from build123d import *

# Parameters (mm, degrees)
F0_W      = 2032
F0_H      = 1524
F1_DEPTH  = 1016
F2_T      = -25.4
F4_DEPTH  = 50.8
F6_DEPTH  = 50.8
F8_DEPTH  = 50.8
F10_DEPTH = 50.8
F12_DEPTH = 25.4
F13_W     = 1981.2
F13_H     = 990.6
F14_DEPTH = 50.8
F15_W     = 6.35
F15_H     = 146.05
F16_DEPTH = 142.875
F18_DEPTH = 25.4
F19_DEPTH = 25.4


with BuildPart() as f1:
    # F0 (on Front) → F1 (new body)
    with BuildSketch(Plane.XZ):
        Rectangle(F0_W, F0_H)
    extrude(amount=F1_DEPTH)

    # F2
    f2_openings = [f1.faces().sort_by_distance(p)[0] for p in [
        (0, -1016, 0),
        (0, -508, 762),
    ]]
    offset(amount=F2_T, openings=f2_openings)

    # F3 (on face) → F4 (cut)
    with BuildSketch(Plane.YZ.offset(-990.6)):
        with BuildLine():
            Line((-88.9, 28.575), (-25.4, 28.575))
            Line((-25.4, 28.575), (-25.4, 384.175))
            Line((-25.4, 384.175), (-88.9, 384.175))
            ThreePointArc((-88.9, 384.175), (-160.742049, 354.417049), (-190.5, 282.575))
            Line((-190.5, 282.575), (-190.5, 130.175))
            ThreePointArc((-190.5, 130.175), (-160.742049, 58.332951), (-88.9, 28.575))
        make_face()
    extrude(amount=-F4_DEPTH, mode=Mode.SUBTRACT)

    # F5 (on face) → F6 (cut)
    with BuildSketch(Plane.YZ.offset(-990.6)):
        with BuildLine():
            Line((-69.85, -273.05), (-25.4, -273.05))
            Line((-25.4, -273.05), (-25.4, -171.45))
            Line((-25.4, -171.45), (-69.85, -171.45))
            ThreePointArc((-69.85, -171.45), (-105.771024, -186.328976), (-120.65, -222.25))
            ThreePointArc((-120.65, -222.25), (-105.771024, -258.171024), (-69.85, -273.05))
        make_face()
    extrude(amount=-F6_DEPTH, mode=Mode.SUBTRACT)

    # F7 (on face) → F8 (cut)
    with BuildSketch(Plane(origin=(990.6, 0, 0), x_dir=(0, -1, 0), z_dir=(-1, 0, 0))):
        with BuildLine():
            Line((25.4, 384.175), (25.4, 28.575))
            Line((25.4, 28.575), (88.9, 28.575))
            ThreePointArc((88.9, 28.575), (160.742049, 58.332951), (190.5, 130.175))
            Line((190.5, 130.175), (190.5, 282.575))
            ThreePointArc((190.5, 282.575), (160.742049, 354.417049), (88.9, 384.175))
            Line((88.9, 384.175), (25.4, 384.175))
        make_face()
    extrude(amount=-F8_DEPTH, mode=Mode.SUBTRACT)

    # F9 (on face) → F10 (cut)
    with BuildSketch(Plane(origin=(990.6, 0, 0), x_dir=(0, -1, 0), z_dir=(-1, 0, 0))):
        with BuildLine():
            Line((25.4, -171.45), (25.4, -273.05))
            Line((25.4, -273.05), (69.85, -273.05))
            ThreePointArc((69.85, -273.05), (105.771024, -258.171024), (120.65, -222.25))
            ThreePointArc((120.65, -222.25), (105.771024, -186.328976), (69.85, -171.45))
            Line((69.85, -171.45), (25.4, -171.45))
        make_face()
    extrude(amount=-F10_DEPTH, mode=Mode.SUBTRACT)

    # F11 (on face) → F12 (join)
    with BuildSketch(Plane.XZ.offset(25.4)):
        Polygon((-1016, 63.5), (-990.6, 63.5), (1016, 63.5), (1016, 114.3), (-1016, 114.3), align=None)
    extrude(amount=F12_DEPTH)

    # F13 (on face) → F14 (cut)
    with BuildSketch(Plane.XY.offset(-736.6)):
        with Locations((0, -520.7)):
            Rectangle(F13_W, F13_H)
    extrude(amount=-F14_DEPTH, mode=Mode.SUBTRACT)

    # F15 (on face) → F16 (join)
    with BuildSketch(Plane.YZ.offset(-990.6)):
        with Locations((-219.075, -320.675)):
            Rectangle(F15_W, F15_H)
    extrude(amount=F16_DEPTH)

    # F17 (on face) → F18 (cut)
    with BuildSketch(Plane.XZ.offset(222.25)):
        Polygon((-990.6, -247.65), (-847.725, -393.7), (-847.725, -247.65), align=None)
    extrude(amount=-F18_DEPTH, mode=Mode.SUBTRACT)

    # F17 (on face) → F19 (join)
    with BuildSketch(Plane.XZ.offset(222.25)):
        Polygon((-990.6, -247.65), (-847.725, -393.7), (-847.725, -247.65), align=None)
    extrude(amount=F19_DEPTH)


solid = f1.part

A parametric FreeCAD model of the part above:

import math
import FreeCAD as App
import Part
import Sketcher
Q = App.Units.Quantity


def faces_at(feature, points):
    """Names of the faces that lie closest to the given points."""
    faces = feature.Shape.Faces
    near = lambda p: min(range(len(faces)), key=lambda i: faces[i].distToShape(Part.Vertex(*p))[0])
    return sorted({f"Face{near(p) + 1}" for p in points})

doc = App.newDocument("Part")
params = doc.addObject("Spreadsheet::Sheet", "Params")
for row, (alias, value) in enumerate([
    ("sketch1_width", "80 in"),
    ("sketch1_height", "60 in"),
    ("pad1_length", "40 in"),
    ("thickness_wall", "1 in"),
    ("sketch2_radius", "4 in"),
    ("sketch2_height", "14 in"),
    ("sketch2_width", "2.5 in"),
    ("pocket1_length", "2 in"),
    ("sketch3_radius", "2.0000001 in"),
    ("sketch3_width", "1.75 in"),
    ("pocket2_length", "2 in"),
    ("sketch4_radius", "4 in"),
    ("sketch4_height", "14 in"),
    ("sketch4_width", "2.5 in"),
    ("pocket3_length", "2 in"),
    ("sketch5_radius", "2.0000001 in"),
    ("sketch5_width", "1.75 in"),
    ("pocket4_length", "2 in"),
    ("sketch6_width", "80 in"),
    ("sketch6_height", "2 in"),
    ("pad2_length", "1 in"),
    ("sketch7_width", "78 in"),
    ("sketch7_height", "39 in"),
    ("pocket5_length", "2 in"),
    ("sketch8_width", "0.25 in"),
    ("sketch8_height", "5.75 in"),
    ("pad3_length", "5.625 in"),
    ("sketch9_height", "5.75 in"),
    ("sketch9_width", "5.625 in"),
    ("pocket6_length", "1 in"),
    ("sketch10_height", "5.75 in"),
    ("sketch10_width", "5.625 in"),
    ("pad4_length", "1 in"),
], start=1):
    params.set(f"A{row}", alias)
    params.set(f"B{row}", "=" + value)
    params.setAlias(f"B{row}", alias)

body = doc.addObject("PartDesign::Body", "Body")
body.AllowCompound = True

# Sketch on XZ plane
sketch1 = body.newObject("Sketcher::SketchObject", "Sketch")
sketch1.AttachmentSupport = (doc.getObject("XZ_Plane"), [""])
sketch1.MapMode = "FlatFace"
sketch1.addGeometry([
    Part.LineSegment(App.Vector(-1016, 762, 0), App.Vector(-1016, -762, 0)),
    Part.LineSegment(App.Vector(-1016, -762, 0), App.Vector(1016, -762, 0)),
    Part.LineSegment(App.Vector(1016, -762, 0), App.Vector(1016, 762, 0)),
    Part.LineSegment(App.Vector(1016, 762, 0), App.Vector(-1016, 762, 0)),
], False)
sketch1.addConstraint([
    Sketcher.Constraint("Coincident", 0, 2, 1, 1),
    Sketcher.Constraint("Coincident", 1, 2, 2, 1),
    Sketcher.Constraint("Coincident", 2, 2, 3, 1),
    Sketcher.Constraint("Coincident", 3, 2, 0, 1),
    Sketcher.Constraint("Vertical", 0),
    Sketcher.Constraint("Horizontal", 1),
    Sketcher.Constraint("Vertical", 2),
    Sketcher.Constraint("Horizontal", 3),
    Sketcher.Constraint("Symmetric", 0, 2, 2, 2, -1, 1),
    Sketcher.Constraint("DistanceX", 1, 1, 1, 2, Q("80 in")),
    Sketcher.Constraint("DistanceY", 0, 2, 0, 1, Q("60 in")),
])
sketch1.setExpression("Constraints[9]", "Params.sketch1_width")
sketch1.setExpression("Constraints[10]", "Params.sketch1_height")
pad1 = body.newObject("PartDesign::Pad", "Pad")
pad1.Profile = sketch1
pad1.setExpression("Length", "Params.pad1_length")
doc.recompute()

thickness = body.newObject("PartDesign::Thickness", "Thickness")
thickness.Base = (pad1, faces_at(pad1, [(0, -1016, 0), (0, -508, 762)]))
thickness.setExpression("Value", "Params.thickness_wall")
thickness.Reversed = True
thickness.Join = "Arc"

# Sketch on YZ plane
sketch2 = body.newObject("Sketcher::SketchObject", "Sketch001")
sketch2.AttachmentSupport = (doc.getObject("YZ_Plane"), [""])
sketch2.MapMode = "FlatFace"
sketch2.AttachmentOffset = App.Placement(App.Vector(0, 0, -39 * 25.4), App.Rotation())
sketch2.addGeometry([
    Part.LineSegment(App.Vector(-89, 29, 0), App.Vector(-25, 29, 0)),  # 0
    Part.LineSegment(App.Vector(-25, 29, 0), App.Vector(-25, 384, 0)),  # 1
    Part.LineSegment(App.Vector(-25, 384, 0), App.Vector(-89, 384, 0)),  # 2
    Part.ArcOfCircle(Part.Circle(App.Vector(-89, 283, 0), App.Vector(0, 0, 1), 102), math.radians(90), math.radians(180)),  # 3
    Part.LineSegment(App.Vector(-190, 283, 0), App.Vector(-190, 130, 0)),  # 4
    Part.ArcOfCircle(Part.Circle(App.Vector(-89, 130, 0), App.Vector(0, 0, 1), 102), math.radians(180), math.radians(270)),  # 5
], False)
sketch2.addConstraint([
    Sketcher.Constraint("Coincident", 0, 2, 1, 1),
    Sketcher.Constraint("Coincident", 1, 2, 2, 1),
    Sketcher.Constraint("Tangent", 2, 2, 3, 1),
    Sketcher.Constraint("Tangent", 3, 2, 4, 1),
    Sketcher.Constraint("Tangent", 4, 2, 5, 1),
    Sketcher.Constraint("Tangent", 5, 2, 0, 1),
    Sketcher.Constraint("Horizontal", 0),
    Sketcher.Constraint("Vertical", 1),
    Sketcher.Constraint("Horizontal", 2),
    Sketcher.Constraint("Vertical", 4),
    Sketcher.Constraint("Equal", 3, 5),
    Sketcher.Constraint("Radius", 3, Q("4 in")),
    Sketcher.Constraint("DistanceY", 1, 1, 1, 2, Q("14 in")),
    Sketcher.Constraint("DistanceX", 0, 1, 0, 2, Q("2.5 in")),
    Sketcher.Constraint("DistanceX", 0, 2, -1, 1, Q("1 in")),
    Sketcher.Constraint("DistanceY", -1, 1, 3, 3, Q("11.125 in")),
])
sketch2.setExpression("Constraints[11]", "Params.sketch2_radius")
sketch2.setExpression("Constraints[12]", "Params.sketch2_height")
sketch2.setExpression("Constraints[13]", "Params.sketch2_width")
pocket1 = body.newObject("PartDesign::Pocket", "Pocket")
pocket1.Profile = sketch2
pocket1.setExpression("Length", "Params.pocket1_length")

# Sketch on YZ plane
sketch3 = body.newObject("Sketcher::SketchObject", "Sketch002")
sketch3.AttachmentSupport = (doc.getObject("YZ_Plane"), [""])
sketch3.MapMode = "FlatFace"
sketch3.AttachmentOffset = App.Placement(App.Vector(0, 0, -39 * 25.4), App.Rotation())
sketch3.addGeometry([
    Part.LineSegment(App.Vector(-70, -273, 0), App.Vector(-25, -273, 0)),  # 0
    Part.LineSegment(App.Vector(-25, -273, 0), App.Vector(-25, -171, 0)),  # 1
    Part.LineSegment(App.Vector(-25, -171, 0), App.Vector(-70, -171, 0)),  # 2
    Part.ArcOfCircle(Part.Circle(App.Vector(-70, -222, 0), App.Vector(0, 0, 1), 51), math.radians(90), math.radians(180)),  # 3
    Part.ArcOfCircle(Part.Circle(App.Vector(-70, -222, 0), App.Vector(0, 0, 1), 51), math.radians(-180), math.radians(-90)),  # 4
], False)
sketch3.addConstraint([
    Sketcher.Constraint("Coincident", 0, 2, 1, 1),
    Sketcher.Constraint("Coincident", 1, 2, 2, 1),
    Sketcher.Constraint("Tangent", 2, 2, 3, 1),
    Sketcher.Constraint("Tangent", 3, 2, 4, 1),
    Sketcher.Constraint("Tangent", 4, 2, 0, 1),
    Sketcher.Constraint("Horizontal", 0),
    Sketcher.Constraint("Vertical", 1),
    Sketcher.Constraint("Horizontal", 2),
    Sketcher.Constraint("Equal", 3, 4),
    Sketcher.Constraint("Horizontal", 4, 3, 3, 2),
    Sketcher.Constraint("Radius", 3, Q("2.0000001 in")),
    Sketcher.Constraint("DistanceX", 0, 2, -1, 1, Q("1 in")),
    Sketcher.Constraint("DistanceX", 0, 1, 0, 2, Q("1.75 in")),
    Sketcher.Constraint("DistanceY", 3, 3, -1, 1, Q("8.7500001 in")),
])
sketch3.setExpression("Constraints[10]", "Params.sketch3_radius")
sketch3.setExpression("Constraints[12]", "Params.sketch3_width")
pocket2 = body.newObject("PartDesign::Pocket", "Pocket001")
pocket2.Profile = sketch3
pocket2.setExpression("Length", "Params.pocket2_length")

# Sketch on YZ plane
sketch4 = body.newObject("Sketcher::SketchObject", "Sketch003")
sketch4.AttachmentSupport = (doc.getObject("YZ_Plane"), [""])
sketch4.MapMode = "FlatFace"
sketch4.AttachmentOffset = App.Placement(App.Vector(0, 0, 39 * 25.4), App.Rotation())
sketch4.addGeometry([
    Part.LineSegment(App.Vector(-25, 384, 0), App.Vector(-25, 29, 0)),  # 0
    Part.LineSegment(App.Vector(-25, 29, 0), App.Vector(-89, 29, 0)),  # 1
    Part.ArcOfCircle(Part.Circle(App.Vector(-89, 130, 0), App.Vector(0, 0, 1), 102), math.radians(180), math.radians(270)),  # 2
    Part.LineSegment(App.Vector(-190, 130, 0), App.Vector(-190, 283, 0)),  # 3
    Part.ArcOfCircle(Part.Circle(App.Vector(-89, 283, 0), App.Vector(0, 0, 1), 102), math.radians(90), math.radians(180)),  # 4
    Part.LineSegment(App.Vector(-89, 384, 0), App.Vector(-25, 384, 0)),  # 5
], False)
sketch4.addConstraint([
    Sketcher.Constraint("Coincident", 0, 2, 1, 1),
    Sketcher.Constraint("Tangent", 1, 2, 2, 2),
    Sketcher.Constraint("Tangent", 2, 1, 3, 1),
    Sketcher.Constraint("Tangent", 3, 2, 4, 2),
    Sketcher.Constraint("Tangent", 4, 1, 5, 1),
    Sketcher.Constraint("Coincident", 5, 2, 0, 1),
    Sketcher.Constraint("Vertical", 0),
    Sketcher.Constraint("Horizontal", 1),
    Sketcher.Constraint("Vertical", 3),
    Sketcher.Constraint("Horizontal", 5),
    Sketcher.Constraint("Equal", 2, 4),
    Sketcher.Constraint("Radius", 2, Q("4 in")),
    Sketcher.Constraint("DistanceY", 0, 2, 0, 1, Q("14 in")),
    Sketcher.Constraint("DistanceX", 1, 2, 1, 1, Q("2.5 in")),
    Sketcher.Constraint("DistanceX", 0, 2, -1, 1, Q("1 in")),
    Sketcher.Constraint("DistanceY", -1, 1, 2, 3, Q("5.125 in")),
])
sketch4.setExpression("Constraints[11]", "Params.sketch4_radius")
sketch4.setExpression("Constraints[12]", "Params.sketch4_height")
sketch4.setExpression("Constraints[13]", "Params.sketch4_width")
pocket3 = body.newObject("PartDesign::Pocket", "Pocket002")
pocket3.Profile = sketch4
pocket3.setExpression("Length", "Params.pocket3_length")
pocket3.Reversed = True

# Sketch on YZ plane
sketch5 = body.newObject("Sketcher::SketchObject", "Sketch004")
sketch5.AttachmentSupport = (doc.getObject("YZ_Plane"), [""])
sketch5.MapMode = "FlatFace"
sketch5.AttachmentOffset = App.Placement(App.Vector(0, 0, 39 * 25.4), App.Rotation())
sketch5.addGeometry([
    Part.LineSegment(App.Vector(-25, -171, 0), App.Vector(-25, -273, 0)),  # 0
    Part.LineSegment(App.Vector(-25, -273, 0), App.Vector(-70, -273, 0)),  # 1
    Part.ArcOfCircle(Part.Circle(App.Vector(-70, -222, 0), App.Vector(0, 0, 1), 51), math.radians(-180), math.radians(-90)),  # 2
    Part.ArcOfCircle(Part.Circle(App.Vector(-70, -222, 0), App.Vector(0, 0, 1), 51), math.radians(90), math.radians(180)),  # 3
    Part.LineSegment(App.Vector(-70, -171, 0), App.Vector(-25, -171, 0)),  # 4
], False)
sketch5.addConstraint([
    Sketcher.Constraint("Coincident", 0, 2, 1, 1),
    Sketcher.Constraint("Tangent", 1, 2, 2, 2),
    Sketcher.Constraint("Tangent", 2, 1, 3, 2),
    Sketcher.Constraint("Tangent", 3, 1, 4, 1),
    Sketcher.Constraint("Coincident", 4, 2, 0, 1),
    Sketcher.Constraint("Vertical", 0),
    Sketcher.Constraint("Horizontal", 1),
    Sketcher.Constraint("Horizontal", 4),
    Sketcher.Constraint("Equal", 2, 3),
    Sketcher.Constraint("Horizontal", 3, 3, 2, 1),
    Sketcher.Constraint("Radius", 2, Q("2.0000001 in")),
    Sketcher.Constraint("DistanceX", 0, 2, -1, 1, Q("1 in")),
    Sketcher.Constraint("DistanceX", 1, 2, 1, 1, Q("1.75 in")),
    Sketcher.Constraint("DistanceY", 2, 3, -1, 1, Q("8.7499999 in")),
])
sketch5.setExpression("Constraints[10]", "Params.sketch5_radius")
sketch5.setExpression("Constraints[12]", "Params.sketch5_width")
pocket4 = body.newObject("PartDesign::Pocket", "Pocket003")
pocket4.Profile = sketch5
pocket4.setExpression("Length", "Params.pocket4_length")
pocket4.Reversed = True

# Sketch on XZ plane
sketch6 = body.newObject("Sketcher::SketchObject", "Sketch005")
sketch6.AttachmentSupport = (doc.getObject("XZ_Plane"), [""])
sketch6.MapMode = "FlatFace"
sketch6.AttachmentOffset = App.Placement(App.Vector(0, 0, 1 * 25.4), App.Rotation())
sketch6.addGeometry([
    Part.LineSegment(App.Vector(-1016, 64, 0), App.Vector(1016, 64, 0)),
    Part.LineSegment(App.Vector(1016, 64, 0), App.Vector(1016, 114, 0)),
    Part.LineSegment(App.Vector(1016, 114, 0), App.Vector(-1016, 114, 0)),
    Part.LineSegment(App.Vector(-1016, 114, 0), App.Vector(-1016, 64, 0)),
], False)
sketch6.addConstraint([
    Sketcher.Constraint("Coincident", 0, 2, 1, 1),
    Sketcher.Constraint("Coincident", 1, 2, 2, 1),
    Sketcher.Constraint("Coincident", 2, 2, 3, 1),
    Sketcher.Constraint("Coincident", 3, 2, 0, 1),
    Sketcher.Constraint("Horizontal", 0),
    Sketcher.Constraint("Vertical", 1),
    Sketcher.Constraint("Horizontal", 2),
    Sketcher.Constraint("Vertical", 3),
    Sketcher.Constraint("DistanceX", 0, 1, 0, 2, Q("80 in")),
    Sketcher.Constraint("DistanceY", 1, 1, 1, 2, Q("2 in")),
    Sketcher.Constraint("DistanceX", -1, 1, 0, 2, Q("40 in")),
    Sketcher.Constraint("DistanceY", -1, 1, 0, 2, Q("2.5 in")),
])
sketch6.setExpression("Constraints[8]", "Params.sketch6_width")
sketch6.setExpression("Constraints[9]", "Params.sketch6_height")
pad2 = body.newObject("PartDesign::Pad", "Pad001")
pad2.Profile = sketch6
pad2.setExpression("Length", "Params.pad2_length")

# Sketch on XY plane
sketch7 = body.newObject("Sketcher::SketchObject", "Sketch006")
sketch7.AttachmentSupport = (doc.getObject("XY_Plane"), [""])
sketch7.MapMode = "FlatFace"
sketch7.AttachmentOffset = App.Placement(App.Vector(0, 0, -29 * 25.4), App.Rotation())
sketch7.addGeometry([
    Part.LineSegment(App.Vector(-991, -25, 0), App.Vector(-991, -1016, 0)),
    Part.LineSegment(App.Vector(-991, -1016, 0), App.Vector(991, -1016, 0)),
    Part.LineSegment(App.Vector(991, -1016, 0), App.Vector(991, -25, 0)),
    Part.LineSegment(App.Vector(991, -25, 0), App.Vector(-991, -25, 0)),
], False)
sketch7.addConstraint([
    Sketcher.Constraint("Coincident", 0, 2, 1, 1),
    Sketcher.Constraint("Coincident", 1, 2, 2, 1),
    Sketcher.Constraint("Coincident", 2, 2, 3, 1),
    Sketcher.Constraint("Coincident", 3, 2, 0, 1),
    Sketcher.Constraint("Vertical", 0),
    Sketcher.Constraint("Horizontal", 1),
    Sketcher.Constraint("Vertical", 2),
    Sketcher.Constraint("Horizontal", 3),
    Sketcher.Constraint("DistanceX", 1, 1, 1, 2, Q("78 in")),
    Sketcher.Constraint("DistanceY", 0, 2, 0, 1, Q("39 in")),
    Sketcher.Constraint("DistanceX", 0, 2, -1, 1, Q("39 in")),
    Sketcher.Constraint("DistanceY", 0, 2, -1, 1, Q("40 in")),
])
sketch7.setExpression("Constraints[8]", "Params.sketch7_width")
sketch7.setExpression("Constraints[9]", "Params.sketch7_height")
pocket5 = body.newObject("PartDesign::Pocket", "Pocket004")
pocket5.Profile = sketch7
pocket5.setExpression("Length", "Params.pocket5_length")

# Sketch on YZ plane
sketch8 = body.newObject("Sketcher::SketchObject", "Sketch007")
sketch8.AttachmentSupport = (doc.getObject("YZ_Plane"), [""])
sketch8.MapMode = "FlatFace"
sketch8.AttachmentOffset = App.Placement(App.Vector(0, 0, -39 * 25.4), App.Rotation())
sketch8.addGeometry([
    Part.LineSegment(App.Vector(-222, -248, 0), App.Vector(-222, -394, 0)),
    Part.LineSegment(App.Vector(-222, -394, 0), App.Vector(-216, -394, 0)),
    Part.LineSegment(App.Vector(-216, -394, 0), App.Vector(-216, -248, 0)),
    Part.LineSegment(App.Vector(-216, -248, 0), App.Vector(-222, -248, 0)),
], False)
sketch8.addConstraint([
    Sketcher.Constraint("Coincident", 0, 2, 1, 1),
    Sketcher.Constraint("Coincident", 1, 2, 2, 1),
    Sketcher.Constraint("Coincident", 2, 2, 3, 1),
    Sketcher.Constraint("Coincident", 3, 2, 0, 1),
    Sketcher.Constraint("Vertical", 0),
    Sketcher.Constraint("Horizontal", 1),
    Sketcher.Constraint("Vertical", 2),
    Sketcher.Constraint("Horizontal", 3),
    Sketcher.Constraint("DistanceX", 1, 1, 1, 2, Q("0.25 in")),
    Sketcher.Constraint("DistanceY", 0, 2, 0, 1, Q("5.75 in")),
    Sketcher.Constraint("DistanceY", 0, 2, -1, 1, Q("15.5 in")),
    Sketcher.Constraint("DistanceX", 1, 2, -1, 1, Q("8.5 in")),
])
sketch8.setExpression("Constraints[8]", "Params.sketch8_width")
sketch8.setExpression("Constraints[9]", "Params.sketch8_height")
pad3 = body.newObject("PartDesign::Pad", "Pad002")
pad3.Profile = sketch8
pad3.setExpression("Length", "Params.pad3_length")

# Sketch on XZ plane
sketch9 = body.newObject("Sketcher::SketchObject", "Sketch008")
sketch9.AttachmentSupport = (doc.getObject("XZ_Plane"), [""])
sketch9.MapMode = "FlatFace"
sketch9.AttachmentOffset = App.Placement(App.Vector(0, 0, 8.75 * 25.4), App.Rotation())
sketch9.addGeometry([
    Part.LineSegment(App.Vector(-991, -248, 0), App.Vector(-848, -394, 0)),
    Part.LineSegment(App.Vector(-848, -394, 0), App.Vector(-848, -248, 0)),
    Part.LineSegment(App.Vector(-848, -248, 0), App.Vector(-991, -248, 0)),
], False)
sketch9.addConstraint([
    Sketcher.Constraint("Coincident", 0, 2, 1, 1),
    Sketcher.Constraint("Coincident", 1, 2, 2, 1),
    Sketcher.Constraint("Coincident", 2, 2, 0, 1),
    Sketcher.Constraint("Vertical", 1),
    Sketcher.Constraint("Horizontal", 2),
    Sketcher.Constraint("DistanceX", 2, 2, -1, 1, Q("39 in")),
    Sketcher.Constraint("DistanceY", 1, 1, 1, 2, Q("5.75 in")),
    Sketcher.Constraint("DistanceY", 0, 2, -1, 1, Q("15.5 in")),
    Sketcher.Constraint("DistanceX", 2, 2, 2, 1, Q("5.625 in")),
])
sketch9.setExpression("Constraints[6]", "Params.sketch9_height")
sketch9.setExpression("Constraints[8]", "Params.sketch9_width")
pocket6 = body.newObject("PartDesign::Pocket", "Pocket005")
pocket6.Profile = sketch9
pocket6.setExpression("Length", "Params.pocket6_length")

# Sketch on XZ plane
sketch10 = body.newObject("Sketcher::SketchObject", "Sketch009")
sketch10.AttachmentSupport = (doc.getObject("XZ_Plane"), [""])
sketch10.MapMode = "FlatFace"
sketch10.AttachmentOffset = App.Placement(App.Vector(0, 0, 8.75 * 25.4), App.Rotation())
sketch10.addGeometry([
    Part.LineSegment(App.Vector(-991, -248, 0), App.Vector(-848, -394, 0)),
    Part.LineSegment(App.Vector(-848, -394, 0), App.Vector(-848, -248, 0)),
    Part.LineSegment(App.Vector(-848, -248, 0), App.Vector(-991, -248, 0)),
], False)
sketch10.addConstraint([
    Sketcher.Constraint("Coincident", 0, 2, 1, 1),
    Sketcher.Constraint("Coincident", 1, 2, 2, 1),
    Sketcher.Constraint("Coincident", 2, 2, 0, 1),
    Sketcher.Constraint("Vertical", 1),
    Sketcher.Constraint("Horizontal", 2),
    Sketcher.Constraint("DistanceX", 2, 2, -1, 1, Q("39 in")),
    Sketcher.Constraint("DistanceY", 1, 1, 1, 2, Q("5.75 in")),
    Sketcher.Constraint("DistanceY", 0, 2, -1, 1, Q("15.5 in")),
    Sketcher.Constraint("DistanceX", 2, 2, 2, 1, Q("5.625 in")),
])
sketch10.setExpression("Constraints[6]", "Params.sketch10_height")
sketch10.setExpression("Constraints[8]", "Params.sketch10_width")
pad4 = body.newObject("PartDesign::Pad", "Pad003")
pad4.Profile = sketch10
pad4.setExpression("Length", "Params.pad4_length")

doc.recompute()
